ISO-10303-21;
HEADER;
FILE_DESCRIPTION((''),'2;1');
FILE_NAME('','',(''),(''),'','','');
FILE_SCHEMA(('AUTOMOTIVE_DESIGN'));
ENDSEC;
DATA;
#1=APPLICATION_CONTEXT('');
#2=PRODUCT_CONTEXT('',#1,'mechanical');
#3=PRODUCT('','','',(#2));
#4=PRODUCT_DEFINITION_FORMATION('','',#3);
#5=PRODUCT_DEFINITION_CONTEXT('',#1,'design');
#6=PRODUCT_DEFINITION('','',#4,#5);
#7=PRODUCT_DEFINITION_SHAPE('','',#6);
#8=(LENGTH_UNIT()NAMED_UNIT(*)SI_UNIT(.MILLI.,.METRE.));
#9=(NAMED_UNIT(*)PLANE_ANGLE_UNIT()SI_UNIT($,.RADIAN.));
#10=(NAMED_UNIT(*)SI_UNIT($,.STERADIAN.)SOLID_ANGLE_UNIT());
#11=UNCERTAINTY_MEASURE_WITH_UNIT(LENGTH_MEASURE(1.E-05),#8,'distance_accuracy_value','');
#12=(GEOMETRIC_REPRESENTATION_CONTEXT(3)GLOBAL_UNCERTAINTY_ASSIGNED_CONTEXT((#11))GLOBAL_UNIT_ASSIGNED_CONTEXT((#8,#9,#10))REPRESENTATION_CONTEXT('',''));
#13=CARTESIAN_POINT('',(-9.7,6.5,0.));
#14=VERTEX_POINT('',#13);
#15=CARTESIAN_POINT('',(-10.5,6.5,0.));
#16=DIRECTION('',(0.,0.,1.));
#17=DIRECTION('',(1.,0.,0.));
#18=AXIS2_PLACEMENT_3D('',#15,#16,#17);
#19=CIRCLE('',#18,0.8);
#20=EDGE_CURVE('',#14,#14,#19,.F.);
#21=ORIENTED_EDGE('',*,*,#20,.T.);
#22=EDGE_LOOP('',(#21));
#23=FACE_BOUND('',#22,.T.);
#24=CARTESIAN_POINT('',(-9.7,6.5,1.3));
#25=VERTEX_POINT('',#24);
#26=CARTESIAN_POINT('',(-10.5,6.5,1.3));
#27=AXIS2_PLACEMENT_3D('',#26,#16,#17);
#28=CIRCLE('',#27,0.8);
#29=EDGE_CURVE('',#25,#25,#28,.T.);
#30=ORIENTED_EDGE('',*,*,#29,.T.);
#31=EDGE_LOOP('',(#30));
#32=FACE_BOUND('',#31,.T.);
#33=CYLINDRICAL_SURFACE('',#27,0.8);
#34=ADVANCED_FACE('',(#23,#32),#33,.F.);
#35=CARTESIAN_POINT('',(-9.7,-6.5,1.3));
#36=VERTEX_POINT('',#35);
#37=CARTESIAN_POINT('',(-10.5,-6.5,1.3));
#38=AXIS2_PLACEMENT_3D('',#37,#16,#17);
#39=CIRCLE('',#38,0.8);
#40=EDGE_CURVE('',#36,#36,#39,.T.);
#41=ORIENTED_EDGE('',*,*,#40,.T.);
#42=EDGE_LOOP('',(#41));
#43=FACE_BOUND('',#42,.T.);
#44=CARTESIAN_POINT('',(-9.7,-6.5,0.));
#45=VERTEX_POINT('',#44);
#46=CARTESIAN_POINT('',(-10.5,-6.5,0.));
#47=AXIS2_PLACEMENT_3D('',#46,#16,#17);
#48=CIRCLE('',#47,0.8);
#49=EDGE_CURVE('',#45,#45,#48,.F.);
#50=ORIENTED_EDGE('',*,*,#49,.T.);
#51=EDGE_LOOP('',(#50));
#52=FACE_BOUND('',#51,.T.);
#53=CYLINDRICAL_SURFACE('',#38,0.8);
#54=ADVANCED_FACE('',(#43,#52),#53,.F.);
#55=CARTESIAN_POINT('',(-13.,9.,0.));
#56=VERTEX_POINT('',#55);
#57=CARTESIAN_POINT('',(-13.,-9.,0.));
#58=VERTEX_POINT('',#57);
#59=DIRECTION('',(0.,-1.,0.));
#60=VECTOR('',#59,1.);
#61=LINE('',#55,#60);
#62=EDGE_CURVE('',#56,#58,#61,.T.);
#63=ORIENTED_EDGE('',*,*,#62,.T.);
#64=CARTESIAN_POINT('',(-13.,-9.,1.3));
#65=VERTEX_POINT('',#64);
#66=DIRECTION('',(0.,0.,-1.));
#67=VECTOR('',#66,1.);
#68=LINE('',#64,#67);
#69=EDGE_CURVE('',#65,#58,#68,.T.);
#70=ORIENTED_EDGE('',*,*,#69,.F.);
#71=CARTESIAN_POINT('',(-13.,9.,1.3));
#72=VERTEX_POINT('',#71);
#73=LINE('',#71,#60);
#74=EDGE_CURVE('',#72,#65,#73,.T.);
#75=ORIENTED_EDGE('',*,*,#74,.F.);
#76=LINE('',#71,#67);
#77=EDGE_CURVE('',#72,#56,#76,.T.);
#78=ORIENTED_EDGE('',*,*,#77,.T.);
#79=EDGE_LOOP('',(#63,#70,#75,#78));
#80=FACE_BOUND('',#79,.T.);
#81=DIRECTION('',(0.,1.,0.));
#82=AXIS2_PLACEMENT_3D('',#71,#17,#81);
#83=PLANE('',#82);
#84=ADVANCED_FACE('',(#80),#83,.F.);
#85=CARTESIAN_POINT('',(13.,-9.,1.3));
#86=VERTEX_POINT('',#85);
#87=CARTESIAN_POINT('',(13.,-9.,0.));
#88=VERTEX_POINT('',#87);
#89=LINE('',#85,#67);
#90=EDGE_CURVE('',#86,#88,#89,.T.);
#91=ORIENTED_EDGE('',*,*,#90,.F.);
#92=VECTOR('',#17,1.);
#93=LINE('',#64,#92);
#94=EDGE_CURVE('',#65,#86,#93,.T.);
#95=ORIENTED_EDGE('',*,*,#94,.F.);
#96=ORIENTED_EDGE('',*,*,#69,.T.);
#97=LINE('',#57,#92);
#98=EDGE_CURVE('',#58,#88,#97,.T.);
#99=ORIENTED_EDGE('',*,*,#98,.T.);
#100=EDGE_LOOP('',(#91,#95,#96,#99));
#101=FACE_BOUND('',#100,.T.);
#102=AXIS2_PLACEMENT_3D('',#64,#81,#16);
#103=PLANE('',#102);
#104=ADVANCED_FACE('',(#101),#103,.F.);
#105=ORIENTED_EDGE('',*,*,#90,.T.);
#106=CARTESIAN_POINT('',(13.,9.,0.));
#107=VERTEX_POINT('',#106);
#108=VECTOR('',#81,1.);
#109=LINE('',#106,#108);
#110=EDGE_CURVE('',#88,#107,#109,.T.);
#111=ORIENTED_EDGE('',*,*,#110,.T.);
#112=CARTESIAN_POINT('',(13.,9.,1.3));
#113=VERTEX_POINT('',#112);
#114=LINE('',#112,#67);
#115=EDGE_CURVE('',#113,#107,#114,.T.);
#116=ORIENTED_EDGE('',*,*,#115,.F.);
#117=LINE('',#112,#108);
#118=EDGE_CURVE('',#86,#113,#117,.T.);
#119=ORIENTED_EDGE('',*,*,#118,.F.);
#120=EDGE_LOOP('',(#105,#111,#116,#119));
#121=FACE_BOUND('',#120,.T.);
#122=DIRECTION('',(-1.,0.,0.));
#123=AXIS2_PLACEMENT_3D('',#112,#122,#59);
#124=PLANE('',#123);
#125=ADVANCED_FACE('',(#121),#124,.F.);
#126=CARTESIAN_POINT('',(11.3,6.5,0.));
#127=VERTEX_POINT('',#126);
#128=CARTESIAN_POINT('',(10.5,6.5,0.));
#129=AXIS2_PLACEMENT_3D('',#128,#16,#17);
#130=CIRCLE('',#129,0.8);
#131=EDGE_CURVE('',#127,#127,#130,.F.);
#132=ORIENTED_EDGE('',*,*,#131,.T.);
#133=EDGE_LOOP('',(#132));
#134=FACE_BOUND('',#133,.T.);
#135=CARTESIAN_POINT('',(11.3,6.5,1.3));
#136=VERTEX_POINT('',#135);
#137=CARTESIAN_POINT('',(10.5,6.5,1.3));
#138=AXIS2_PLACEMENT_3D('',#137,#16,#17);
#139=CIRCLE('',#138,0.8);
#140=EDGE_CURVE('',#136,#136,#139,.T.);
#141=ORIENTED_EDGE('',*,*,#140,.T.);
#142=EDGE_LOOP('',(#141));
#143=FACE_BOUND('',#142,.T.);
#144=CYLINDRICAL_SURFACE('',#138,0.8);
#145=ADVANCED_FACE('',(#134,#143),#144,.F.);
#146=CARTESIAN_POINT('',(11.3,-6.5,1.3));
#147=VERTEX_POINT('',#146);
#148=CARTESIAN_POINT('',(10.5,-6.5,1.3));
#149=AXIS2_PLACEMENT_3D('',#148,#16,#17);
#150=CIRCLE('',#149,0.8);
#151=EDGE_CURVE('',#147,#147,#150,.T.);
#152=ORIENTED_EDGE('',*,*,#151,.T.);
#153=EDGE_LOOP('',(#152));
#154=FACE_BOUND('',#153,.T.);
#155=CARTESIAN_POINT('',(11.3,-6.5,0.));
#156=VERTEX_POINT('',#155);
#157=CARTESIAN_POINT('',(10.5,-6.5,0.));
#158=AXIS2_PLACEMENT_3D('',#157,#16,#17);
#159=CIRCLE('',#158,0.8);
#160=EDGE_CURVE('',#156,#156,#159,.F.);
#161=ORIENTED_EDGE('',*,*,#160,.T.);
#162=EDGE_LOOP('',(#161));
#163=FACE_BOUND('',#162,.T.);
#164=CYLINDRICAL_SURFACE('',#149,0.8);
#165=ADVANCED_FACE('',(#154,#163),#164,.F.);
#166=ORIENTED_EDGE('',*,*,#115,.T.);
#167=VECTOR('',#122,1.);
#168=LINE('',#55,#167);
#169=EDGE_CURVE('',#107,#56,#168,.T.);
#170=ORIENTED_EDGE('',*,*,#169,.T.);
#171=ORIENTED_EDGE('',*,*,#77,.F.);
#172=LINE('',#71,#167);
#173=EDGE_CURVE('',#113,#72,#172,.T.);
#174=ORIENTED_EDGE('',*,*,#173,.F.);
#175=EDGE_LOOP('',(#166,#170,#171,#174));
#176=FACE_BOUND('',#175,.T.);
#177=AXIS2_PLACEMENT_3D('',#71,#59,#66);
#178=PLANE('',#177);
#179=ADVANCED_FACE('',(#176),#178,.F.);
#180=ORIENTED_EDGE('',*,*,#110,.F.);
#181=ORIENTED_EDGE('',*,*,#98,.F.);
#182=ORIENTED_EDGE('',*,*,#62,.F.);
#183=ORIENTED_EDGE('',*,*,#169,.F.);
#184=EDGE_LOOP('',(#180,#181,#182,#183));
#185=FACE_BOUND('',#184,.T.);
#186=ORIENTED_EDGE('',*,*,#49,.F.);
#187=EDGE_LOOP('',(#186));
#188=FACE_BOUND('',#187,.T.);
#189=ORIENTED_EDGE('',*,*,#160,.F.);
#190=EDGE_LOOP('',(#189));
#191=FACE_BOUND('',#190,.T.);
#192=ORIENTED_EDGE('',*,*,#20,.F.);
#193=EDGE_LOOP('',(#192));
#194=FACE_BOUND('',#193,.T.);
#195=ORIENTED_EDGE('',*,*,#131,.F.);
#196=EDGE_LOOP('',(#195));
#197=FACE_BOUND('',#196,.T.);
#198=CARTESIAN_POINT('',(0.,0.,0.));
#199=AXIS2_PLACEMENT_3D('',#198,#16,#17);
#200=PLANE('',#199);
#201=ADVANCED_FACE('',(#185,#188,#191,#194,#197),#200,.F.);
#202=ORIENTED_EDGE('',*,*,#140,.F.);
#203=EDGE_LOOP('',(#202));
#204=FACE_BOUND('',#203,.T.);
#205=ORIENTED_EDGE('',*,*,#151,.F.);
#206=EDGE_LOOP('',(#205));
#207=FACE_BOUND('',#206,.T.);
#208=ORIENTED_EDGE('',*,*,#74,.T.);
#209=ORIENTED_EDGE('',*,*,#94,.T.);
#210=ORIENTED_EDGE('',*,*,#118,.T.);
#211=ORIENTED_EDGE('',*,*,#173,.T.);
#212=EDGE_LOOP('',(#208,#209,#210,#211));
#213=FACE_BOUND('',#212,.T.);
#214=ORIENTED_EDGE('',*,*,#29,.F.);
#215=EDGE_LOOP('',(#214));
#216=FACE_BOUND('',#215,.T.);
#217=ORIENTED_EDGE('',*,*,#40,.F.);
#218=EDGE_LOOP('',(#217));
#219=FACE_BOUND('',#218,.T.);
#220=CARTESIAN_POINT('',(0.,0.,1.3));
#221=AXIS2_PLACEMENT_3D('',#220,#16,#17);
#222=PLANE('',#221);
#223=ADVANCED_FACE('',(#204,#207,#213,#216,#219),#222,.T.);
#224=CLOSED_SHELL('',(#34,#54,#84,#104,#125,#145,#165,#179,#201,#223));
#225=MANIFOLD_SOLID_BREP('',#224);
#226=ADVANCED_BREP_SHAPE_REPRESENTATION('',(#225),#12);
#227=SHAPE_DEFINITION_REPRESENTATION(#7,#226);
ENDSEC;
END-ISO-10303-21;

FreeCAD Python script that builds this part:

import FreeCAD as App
import Part
import Sketcher


def add_polygon(sketch, points):
    """Adds a closed chain of lines whose ends are joined by coincident constraints."""
    first, n = sketch.GeometryCount, len(points)
    for a, b in zip(points, points[1:] + points[:1]):
        sketch.addGeometry(Part.LineSegment(App.Vector(*a, 0), App.Vector(*b, 0)), False)
    for i in range(n):
        sketch.addConstraint(Sketcher.Constraint("Coincident", first + i, 2, first + (i + 1) % n, 1))

doc = App.newDocument("Part")
params = doc.addObject("Spreadsheet::Sheet", "Params")
for row, (alias, value) in enumerate([
    ("sketch1_width", "26 mm"),
    ("sketch1_height", "18 mm"),
    ("pad1_length", "1.3 mm"),
    ("sketch2_diameter", "1.6 mm"),
    ("hole_diameter", "1.6 mm"),
    ("hole_depth", "1.3 mm"),
], start=1):
    params.set(f"A{row}", alias)
    params.set(f"B{row}", "=" + value)
    params.setAlias(f"B{row}", alias)

body = doc.addObject("PartDesign::Body", "Body")

sketch1 = body.newObject("Sketcher::SketchObject", "Sketch")
sketch1.AttachmentSupport = (doc.getObject("XY_Plane"), [""])
sketch1.MapMode = "FlatFace"
add_polygon(sketch1, [(-13, 9), (-13, -9), (13, -9), (13, 9)])
sketch1.addConstraint([
    Sketcher.Constraint("Vertical", 0),
    Sketcher.Constraint("Horizontal", 1),
    Sketcher.Constraint("Vertical", 2),
    Sketcher.Constraint("Horizontal", 3),
    Sketcher.Constraint("Symmetric", 0, 2, 2, 2, -1, 1),
    Sketcher.Constraint("DistanceX", 1, 1, 1, 2, 26.0),
    Sketcher.Constraint("DistanceY", 0, 2, 0, 1, 18.0),
])
sketch1.setExpression("Constraints[9]", "Params.sketch1_width")
sketch1.setExpression("Constraints[10]", "Params.sketch1_height")
pad1 = body.newObject("PartDesign::Pad", "Pad")
pad1.Profile = sketch1
pad1.setExpression("Length", "Params.pad1_length")

sketch2 = body.newObject("Sketcher::SketchObject", "Sketch001")
sketch2.AttachmentSupport = (doc.getObject("XY_Plane"), [""])
sketch2.MapMode = "FlatFace"
sketch2.AttachmentOffset = App.Placement(App.Vector(0, 0, 1.3), App.Rotation())
sketch2.addGeometry([
    Part.Circle(App.Vector(-10.5, 6.5, 0), App.Vector(0, 0, 1), 0.8),
    Part.Circle(App.Vector(-10.5, -6.5, 0), App.Vector(0, 0, 1), 0.8),
    Part.Circle(App.Vector(10.5, -6.5, 0), App.Vector(0, 0, 1), 0.8),
    Part.Circle(App.Vector(10.5, 6.5, 0), App.Vector(0, 0, 1), 0.8),
], False)
sketch2.addConstraint([
    Sketcher.Constraint("Equal", 0, 1),
    Sketcher.Constraint("Equal", 1, 2),
    Sketcher.Constraint("Equal", 2, 3),
    Sketcher.Constraint("Symmetric", 0, 3, 2, 3, -1, 1),
    Sketcher.Constraint("Symmetric", 1, 3, 3, 3, -1, 1),
    Sketcher.Constraint("Symmetric", 1, 3, 2, 3, -2),
    Sketcher.Constraint("Diameter", 0, 1.6),
    Sketcher.Constraint("DistanceY", 1, 3, 0, 3, 13.0),
    Sketcher.Constraint("DistanceX", 1, 3, 2, 3, 21.0),
])
sketch2.setExpression("Constraints[6]", "Params.sketch2_diameter")
doc.recompute()
hole = body.newObject("PartDesign::Hole", "Hole")
hole.Profile = sketch2
hole.ThreadType = "None"
hole.setExpression("Diameter", "Params.hole_diameter")
hole.DepthType = "Dimension"
hole.setExpression("Depth", "Params.hole_depth")
hole.DrillPoint = "Angled"
hole.DrillPointAngle = 118

doc.recompute()
